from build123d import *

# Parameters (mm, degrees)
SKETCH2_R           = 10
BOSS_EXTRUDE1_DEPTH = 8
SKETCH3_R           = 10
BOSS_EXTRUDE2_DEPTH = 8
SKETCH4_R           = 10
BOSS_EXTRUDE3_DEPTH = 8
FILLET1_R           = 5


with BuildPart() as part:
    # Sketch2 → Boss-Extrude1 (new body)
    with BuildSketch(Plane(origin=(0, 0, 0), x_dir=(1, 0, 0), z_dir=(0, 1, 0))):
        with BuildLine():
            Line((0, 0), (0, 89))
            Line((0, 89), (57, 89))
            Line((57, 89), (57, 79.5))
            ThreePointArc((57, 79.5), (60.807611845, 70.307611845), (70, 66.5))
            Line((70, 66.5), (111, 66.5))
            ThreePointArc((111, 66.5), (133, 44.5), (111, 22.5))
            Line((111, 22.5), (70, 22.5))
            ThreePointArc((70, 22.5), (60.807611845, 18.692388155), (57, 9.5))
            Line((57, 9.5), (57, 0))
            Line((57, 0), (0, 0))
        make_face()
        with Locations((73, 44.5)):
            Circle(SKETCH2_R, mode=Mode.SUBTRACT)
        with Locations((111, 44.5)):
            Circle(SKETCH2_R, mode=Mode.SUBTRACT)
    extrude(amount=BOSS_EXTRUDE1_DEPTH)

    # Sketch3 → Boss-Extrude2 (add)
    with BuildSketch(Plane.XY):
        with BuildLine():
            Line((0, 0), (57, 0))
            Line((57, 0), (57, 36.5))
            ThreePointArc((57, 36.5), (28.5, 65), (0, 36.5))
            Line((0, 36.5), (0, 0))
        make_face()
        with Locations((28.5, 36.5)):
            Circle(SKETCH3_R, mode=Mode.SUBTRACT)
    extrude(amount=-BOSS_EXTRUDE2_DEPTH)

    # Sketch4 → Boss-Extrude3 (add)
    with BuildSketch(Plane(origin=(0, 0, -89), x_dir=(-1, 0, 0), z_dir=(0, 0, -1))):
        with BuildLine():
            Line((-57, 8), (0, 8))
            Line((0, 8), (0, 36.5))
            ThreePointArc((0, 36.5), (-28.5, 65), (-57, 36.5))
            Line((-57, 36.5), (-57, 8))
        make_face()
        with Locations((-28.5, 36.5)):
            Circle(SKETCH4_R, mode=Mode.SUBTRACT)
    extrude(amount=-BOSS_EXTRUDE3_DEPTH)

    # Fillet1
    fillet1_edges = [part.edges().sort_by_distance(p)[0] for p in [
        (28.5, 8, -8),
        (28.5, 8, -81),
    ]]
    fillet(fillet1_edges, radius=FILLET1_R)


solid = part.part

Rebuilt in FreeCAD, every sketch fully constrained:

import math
import FreeCAD as App
import Part
import Sketcher
from FreeCAD import Vector
Q = App.Units.Quantity


def edges_at(feature, points):
    """Names of the edges that pass closest to the given points."""
    edges = feature.Shape.Edges
    near = lambda p: min(range(len(edges)), key=lambda i: edges[i].distToShape(Part.Vertex(*p))[0])
    return sorted({f"Edge{near(p) + 1}" for p in points})

doc = App.newDocument("Part")
params = doc.addObject("Spreadsheet::Sheet", "Params")
for row, (alias, value) in enumerate([
    ("sketch1_diameter", "20 mm"),
    ("sketch1_radius", "13 mm"),
    ("sketch1_radius2", "22 mm"),
    ("sketch1_width", "57 mm"),
    ("sketch1_width2", "41 mm"),
    ("pad1_length", "8 mm"),
    ("sketch2_diameter", "20 mm"),
    ("sketch2_radius", "28.5 mm"),
    ("sketch2_height", "36.5 mm"),
    ("pad2_length", "8 mm"),
    ("sketch3_diameter", "20 mm"),
    ("sketch3_radius", "28.5 mm"),
    ("sketch3_height", "28.5 mm"),
    ("pad3_length", "8 mm"),
    ("fillet_radius", "5 mm"),
], start=1):
    params.set(f"A{row}", alias)
    params.set(f"B{row}", "=" + value)
    params.setAlias(f"B{row}", alias)

body = doc.addObject("PartDesign::Body", "Body")

sketch1 = body.newObject("Sketcher::SketchObject", "Sketch")
sketch1.AttachmentSupport = (doc.getObject("XZ_Plane"), [""])
sketch1.MapMode = "FlatFace"
sketch1.addGeometry([
    Part.LineSegment(Vector(0, -89, 0), Vector(0, 0, 0)),
    Part.LineSegment(Vector(0, 0, 0), Vector(57, 0, 0)),
    Part.LineSegment(Vector(57, 0, 0), Vector(57, -10, 0)),
    Part.ArcOfCircle(Part.Circle(Vector(70, -9, 0), Vector(0, 0, 1), 13), math.radians(-180), math.radians(-90)),
    Part.LineSegment(Vector(70, -22, 0), Vector(111, -22, 0)),
    Part.ArcOfCircle(Part.Circle(Vector(111, -44, 0), Vector(0, 0, 1), 22), math.radians(-90), math.radians(90)),
    Part.LineSegment(Vector(111, -66, 0), Vector(70, -66, 0)),
    Part.ArcOfCircle(Part.Circle(Vector(70, -80, 0), Vector(0, 0, 1), 13), math.radians(90), math.radians(180)),
    Part.LineSegment(Vector(57, -80, 0), Vector(57, -89, 0)),
    Part.LineSegment(Vector(57, -89, 0), Vector(0, -89, 0)),
    Part.Circle(Vector(111, -44, 0), Vector(0, 0, 1), 10),
    Part.Circle(Vector(73, -44, 0), Vector(0, 0, 1), 10),
], False)
sketch1.addConstraint([
    Sketcher.Constraint("Coincident", 0, 2, 1, 1),
    Sketcher.Constraint("Coincident", 1, 2, 2, 1),
    Sketcher.Constraint("Tangent", 2, 2, 3, 1),
    Sketcher.Constraint("Tangent", 3, 2, 4, 1),
    Sketcher.Constraint("Tangent", 4, 2, 5, 2),
    Sketcher.Constraint("Tangent", 5, 1, 6, 1),
    Sketcher.Constraint("Tangent", 6, 2, 7, 1),
    Sketcher.Constraint("Tangent", 7, 2, 8, 1),
    Sketcher.Constraint("Coincident", 8, 2, 9, 1),
    Sketcher.Constraint("Coincident", 9, 2, 0, 1),
    Sketcher.Constraint("Vertical", 0),
    Sketcher.Constraint("Horizontal", 1),
    Sketcher.Constraint("Vertical", 2),
    Sketcher.Constraint("Horizontal", 4),
    Sketcher.Constraint("Horizontal", 6),
    Sketcher.Constraint("Vertical", 8),
    Sketcher.Constraint("Horizontal", 9),
    Sketcher.Constraint("Coincident", 0, 2, -1, 1),
    Sketcher.Constraint("Coincident", 10, 3, 5, 3),
    Sketcher.Constraint("Equal", 3, 7),
    Sketcher.Constraint("Equal", 10, 11),
    Sketcher.Constraint("Horizontal", 10, 3, 11, 3),
    Sketcher.Constraint("Vertical", 3, 3, 7, 3),
    Sketcher.Constraint("Equal", 2, 8),
    Sketcher.Constraint("Diameter", 10, Q("20 mm")),
    Sketcher.Constraint("Radius", 3, Q("13 mm")),
    Sketcher.Constraint("Radius", 5, Q("22 mm")),
    Sketcher.Constraint("DistanceX", 1, 1, 1, 2, Q("57 mm")),
    Sketcher.Constraint("DistanceX", 4, 1, 4, 2, Q("41 mm")),
    Sketcher.Constraint("DistanceY", 0, 1, 0, 2, Q("89 mm")),
    Sketcher.Constraint("DistanceX", -1, 1, 11, 3, Q("73 mm")),
])
sketch1.setExpression("Constraints[24]", "Params.sketch1_diameter")
sketch1.setExpression("Constraints[25]", "Params.sketch1_radius")
sketch1.setExpression("Constraints[26]", "Params.sketch1_radius2")
sketch1.setExpression("Constraints[27]", "Params.sketch1_width")
sketch1.setExpression("Constraints[28]", "Params.sketch1_width2")
pad1 = body.newObject("PartDesign::Pad", "Pad")
pad1.Profile = sketch1
pad1.setExpression("Length", "Params.pad1_length")
pad1.Reversed = True

sketch2 = body.newObject("Sketcher::SketchObject", "Sketch001")
sketch2.AttachmentSupport = (doc.getObject("XY_Plane"), [""])
sketch2.MapMode = "FlatFace"
sketch2.addGeometry([
    Part.LineSegment(Vector(0, 0, 0), Vector(57, 0, 0)),
    Part.LineSegment(Vector(57, 0, 0), Vector(57, 36, 0)),
    Part.ArcOfCircle(Part.Circle(Vector(28, 36, 0), Vector(0, 0, 1), 28), math.radians(0), math.radians(180)),
    Part.LineSegment(Vector(0, 36, 0), Vector(0, 0, 0)),
    Part.Circle(Vector(28, 36, 0), Vector(0, 0, 1), 10),
], False)
sketch2.addConstraint([
    Sketcher.Constraint("Coincident", 0, 2, 1, 1),
    Sketcher.Constraint("Tangent", 1, 2, 2, 1),
    Sketcher.Constraint("Tangent", 2, 2, 3, 1),
    Sketcher.Constraint("Coincident", 3, 2, 0, 1),
    Sketcher.Constraint("Horizontal", 0),
    Sketcher.Constraint("Vertical", 1),
    Sketcher.Constraint("Vertical", 3),
    Sketcher.Constraint("Coincident", 3, 2, -1, 1),
    Sketcher.Constraint("Coincident", 4, 3, 2, 3),
    Sketcher.Constraint("Diameter", 4, Q("20 mm")),
    Sketcher.Constraint("Radius", 2, Q("28.5 mm")),
    Sketcher.Constraint("DistanceY", 1, 1, 1, 2, Q("36.5 mm")),
])
sketch2.setExpression("Constraints[9]", "Params.sketch2_diameter")
sketch2.setExpression("Constraints[10]", "Params.sketch2_radius")
sketch2.setExpression("Constraints[11]", "Params.sketch2_height")
pad2 = body.newObject("PartDesign::Pad", "Pad001")
pad2.Profile = sketch2
pad2.setExpression("Length", "Params.pad2_length")
pad2.Reversed = True

sketch3 = body.newObject("Sketcher::SketchObject", "Sketch002")
sketch3.AttachmentSupport = (doc.getObject("XY_Plane"), [""])
sketch3.MapMode = "FlatFace"
sketch3.AttachmentOffset = App.Placement(Vector(0, 0, -89), App.Rotation())
sketch3.addGeometry([
    Part.LineSegment(Vector(57, 8, 0), Vector(0, 8, 0)),
    Part.LineSegment(Vector(0, 8, 0), Vector(0, 36, 0)),
    Part.ArcOfCircle(Part.Circle(Vector(28, 36, 0), Vector(0, 0, 1), 28), math.radians(0), math.radians(180)),
    Part.LineSegment(Vector(57, 36, 0), Vector(57, 8, 0)),
    Part.Circle(Vector(28, 36, 0), Vector(0, 0, 1), 10),
], False)
sketch3.addConstraint([
    Sketcher.Constraint("Coincident", 0, 2, 1, 1),
    Sketcher.Constraint("Tangent", 1, 2, 2, 2),
    Sketcher.Constraint("Tangent", 2, 1, 3, 1),
    Sketcher.Constraint("Coincident", 3, 2, 0, 1),
    Sketcher.Constraint("Horizontal", 0),
    Sketcher.Constraint("Vertical", 1),
    Sketcher.Constraint("Vertical", 3),
    Sketcher.Constraint("Coincident", 4, 3, 2, 3),
    Sketcher.Constraint("PointOnObject", 0, 2, -2),
    Sketcher.Constraint("Diameter", 4, Q("20 mm")),
    Sketcher.Constraint("Radius", 2, Q("28.5 mm")),
    Sketcher.Constraint("DistanceY", 1, 1, 1, 2, Q("28.5 mm")),
    Sketcher.Constraint("DistanceY", -1, 1, 0, 2, Q("8 mm")),
])
sketch3.setExpression("Constraints[9]", "Params.sketch3_diameter")
sketch3.setExpression("Constraints[10]", "Params.sketch3_radius")
sketch3.setExpression("Constraints[11]", "Params.sketch3_height")
pad3 = body.newObject("PartDesign::Pad", "Pad002")
pad3.Profile = sketch3
pad3.setExpression("Length", "Params.pad3_length")
doc.recompute()

fillet = body.newObject("PartDesign::Fillet", "Fillet")
fillet.Base = (pad3, edges_at(pad3, [(28.5, 8, -8), (28.5, 8, -81)]))
fillet.setExpression("Radius", "Params.fillet_radius")

doc.recompute()
